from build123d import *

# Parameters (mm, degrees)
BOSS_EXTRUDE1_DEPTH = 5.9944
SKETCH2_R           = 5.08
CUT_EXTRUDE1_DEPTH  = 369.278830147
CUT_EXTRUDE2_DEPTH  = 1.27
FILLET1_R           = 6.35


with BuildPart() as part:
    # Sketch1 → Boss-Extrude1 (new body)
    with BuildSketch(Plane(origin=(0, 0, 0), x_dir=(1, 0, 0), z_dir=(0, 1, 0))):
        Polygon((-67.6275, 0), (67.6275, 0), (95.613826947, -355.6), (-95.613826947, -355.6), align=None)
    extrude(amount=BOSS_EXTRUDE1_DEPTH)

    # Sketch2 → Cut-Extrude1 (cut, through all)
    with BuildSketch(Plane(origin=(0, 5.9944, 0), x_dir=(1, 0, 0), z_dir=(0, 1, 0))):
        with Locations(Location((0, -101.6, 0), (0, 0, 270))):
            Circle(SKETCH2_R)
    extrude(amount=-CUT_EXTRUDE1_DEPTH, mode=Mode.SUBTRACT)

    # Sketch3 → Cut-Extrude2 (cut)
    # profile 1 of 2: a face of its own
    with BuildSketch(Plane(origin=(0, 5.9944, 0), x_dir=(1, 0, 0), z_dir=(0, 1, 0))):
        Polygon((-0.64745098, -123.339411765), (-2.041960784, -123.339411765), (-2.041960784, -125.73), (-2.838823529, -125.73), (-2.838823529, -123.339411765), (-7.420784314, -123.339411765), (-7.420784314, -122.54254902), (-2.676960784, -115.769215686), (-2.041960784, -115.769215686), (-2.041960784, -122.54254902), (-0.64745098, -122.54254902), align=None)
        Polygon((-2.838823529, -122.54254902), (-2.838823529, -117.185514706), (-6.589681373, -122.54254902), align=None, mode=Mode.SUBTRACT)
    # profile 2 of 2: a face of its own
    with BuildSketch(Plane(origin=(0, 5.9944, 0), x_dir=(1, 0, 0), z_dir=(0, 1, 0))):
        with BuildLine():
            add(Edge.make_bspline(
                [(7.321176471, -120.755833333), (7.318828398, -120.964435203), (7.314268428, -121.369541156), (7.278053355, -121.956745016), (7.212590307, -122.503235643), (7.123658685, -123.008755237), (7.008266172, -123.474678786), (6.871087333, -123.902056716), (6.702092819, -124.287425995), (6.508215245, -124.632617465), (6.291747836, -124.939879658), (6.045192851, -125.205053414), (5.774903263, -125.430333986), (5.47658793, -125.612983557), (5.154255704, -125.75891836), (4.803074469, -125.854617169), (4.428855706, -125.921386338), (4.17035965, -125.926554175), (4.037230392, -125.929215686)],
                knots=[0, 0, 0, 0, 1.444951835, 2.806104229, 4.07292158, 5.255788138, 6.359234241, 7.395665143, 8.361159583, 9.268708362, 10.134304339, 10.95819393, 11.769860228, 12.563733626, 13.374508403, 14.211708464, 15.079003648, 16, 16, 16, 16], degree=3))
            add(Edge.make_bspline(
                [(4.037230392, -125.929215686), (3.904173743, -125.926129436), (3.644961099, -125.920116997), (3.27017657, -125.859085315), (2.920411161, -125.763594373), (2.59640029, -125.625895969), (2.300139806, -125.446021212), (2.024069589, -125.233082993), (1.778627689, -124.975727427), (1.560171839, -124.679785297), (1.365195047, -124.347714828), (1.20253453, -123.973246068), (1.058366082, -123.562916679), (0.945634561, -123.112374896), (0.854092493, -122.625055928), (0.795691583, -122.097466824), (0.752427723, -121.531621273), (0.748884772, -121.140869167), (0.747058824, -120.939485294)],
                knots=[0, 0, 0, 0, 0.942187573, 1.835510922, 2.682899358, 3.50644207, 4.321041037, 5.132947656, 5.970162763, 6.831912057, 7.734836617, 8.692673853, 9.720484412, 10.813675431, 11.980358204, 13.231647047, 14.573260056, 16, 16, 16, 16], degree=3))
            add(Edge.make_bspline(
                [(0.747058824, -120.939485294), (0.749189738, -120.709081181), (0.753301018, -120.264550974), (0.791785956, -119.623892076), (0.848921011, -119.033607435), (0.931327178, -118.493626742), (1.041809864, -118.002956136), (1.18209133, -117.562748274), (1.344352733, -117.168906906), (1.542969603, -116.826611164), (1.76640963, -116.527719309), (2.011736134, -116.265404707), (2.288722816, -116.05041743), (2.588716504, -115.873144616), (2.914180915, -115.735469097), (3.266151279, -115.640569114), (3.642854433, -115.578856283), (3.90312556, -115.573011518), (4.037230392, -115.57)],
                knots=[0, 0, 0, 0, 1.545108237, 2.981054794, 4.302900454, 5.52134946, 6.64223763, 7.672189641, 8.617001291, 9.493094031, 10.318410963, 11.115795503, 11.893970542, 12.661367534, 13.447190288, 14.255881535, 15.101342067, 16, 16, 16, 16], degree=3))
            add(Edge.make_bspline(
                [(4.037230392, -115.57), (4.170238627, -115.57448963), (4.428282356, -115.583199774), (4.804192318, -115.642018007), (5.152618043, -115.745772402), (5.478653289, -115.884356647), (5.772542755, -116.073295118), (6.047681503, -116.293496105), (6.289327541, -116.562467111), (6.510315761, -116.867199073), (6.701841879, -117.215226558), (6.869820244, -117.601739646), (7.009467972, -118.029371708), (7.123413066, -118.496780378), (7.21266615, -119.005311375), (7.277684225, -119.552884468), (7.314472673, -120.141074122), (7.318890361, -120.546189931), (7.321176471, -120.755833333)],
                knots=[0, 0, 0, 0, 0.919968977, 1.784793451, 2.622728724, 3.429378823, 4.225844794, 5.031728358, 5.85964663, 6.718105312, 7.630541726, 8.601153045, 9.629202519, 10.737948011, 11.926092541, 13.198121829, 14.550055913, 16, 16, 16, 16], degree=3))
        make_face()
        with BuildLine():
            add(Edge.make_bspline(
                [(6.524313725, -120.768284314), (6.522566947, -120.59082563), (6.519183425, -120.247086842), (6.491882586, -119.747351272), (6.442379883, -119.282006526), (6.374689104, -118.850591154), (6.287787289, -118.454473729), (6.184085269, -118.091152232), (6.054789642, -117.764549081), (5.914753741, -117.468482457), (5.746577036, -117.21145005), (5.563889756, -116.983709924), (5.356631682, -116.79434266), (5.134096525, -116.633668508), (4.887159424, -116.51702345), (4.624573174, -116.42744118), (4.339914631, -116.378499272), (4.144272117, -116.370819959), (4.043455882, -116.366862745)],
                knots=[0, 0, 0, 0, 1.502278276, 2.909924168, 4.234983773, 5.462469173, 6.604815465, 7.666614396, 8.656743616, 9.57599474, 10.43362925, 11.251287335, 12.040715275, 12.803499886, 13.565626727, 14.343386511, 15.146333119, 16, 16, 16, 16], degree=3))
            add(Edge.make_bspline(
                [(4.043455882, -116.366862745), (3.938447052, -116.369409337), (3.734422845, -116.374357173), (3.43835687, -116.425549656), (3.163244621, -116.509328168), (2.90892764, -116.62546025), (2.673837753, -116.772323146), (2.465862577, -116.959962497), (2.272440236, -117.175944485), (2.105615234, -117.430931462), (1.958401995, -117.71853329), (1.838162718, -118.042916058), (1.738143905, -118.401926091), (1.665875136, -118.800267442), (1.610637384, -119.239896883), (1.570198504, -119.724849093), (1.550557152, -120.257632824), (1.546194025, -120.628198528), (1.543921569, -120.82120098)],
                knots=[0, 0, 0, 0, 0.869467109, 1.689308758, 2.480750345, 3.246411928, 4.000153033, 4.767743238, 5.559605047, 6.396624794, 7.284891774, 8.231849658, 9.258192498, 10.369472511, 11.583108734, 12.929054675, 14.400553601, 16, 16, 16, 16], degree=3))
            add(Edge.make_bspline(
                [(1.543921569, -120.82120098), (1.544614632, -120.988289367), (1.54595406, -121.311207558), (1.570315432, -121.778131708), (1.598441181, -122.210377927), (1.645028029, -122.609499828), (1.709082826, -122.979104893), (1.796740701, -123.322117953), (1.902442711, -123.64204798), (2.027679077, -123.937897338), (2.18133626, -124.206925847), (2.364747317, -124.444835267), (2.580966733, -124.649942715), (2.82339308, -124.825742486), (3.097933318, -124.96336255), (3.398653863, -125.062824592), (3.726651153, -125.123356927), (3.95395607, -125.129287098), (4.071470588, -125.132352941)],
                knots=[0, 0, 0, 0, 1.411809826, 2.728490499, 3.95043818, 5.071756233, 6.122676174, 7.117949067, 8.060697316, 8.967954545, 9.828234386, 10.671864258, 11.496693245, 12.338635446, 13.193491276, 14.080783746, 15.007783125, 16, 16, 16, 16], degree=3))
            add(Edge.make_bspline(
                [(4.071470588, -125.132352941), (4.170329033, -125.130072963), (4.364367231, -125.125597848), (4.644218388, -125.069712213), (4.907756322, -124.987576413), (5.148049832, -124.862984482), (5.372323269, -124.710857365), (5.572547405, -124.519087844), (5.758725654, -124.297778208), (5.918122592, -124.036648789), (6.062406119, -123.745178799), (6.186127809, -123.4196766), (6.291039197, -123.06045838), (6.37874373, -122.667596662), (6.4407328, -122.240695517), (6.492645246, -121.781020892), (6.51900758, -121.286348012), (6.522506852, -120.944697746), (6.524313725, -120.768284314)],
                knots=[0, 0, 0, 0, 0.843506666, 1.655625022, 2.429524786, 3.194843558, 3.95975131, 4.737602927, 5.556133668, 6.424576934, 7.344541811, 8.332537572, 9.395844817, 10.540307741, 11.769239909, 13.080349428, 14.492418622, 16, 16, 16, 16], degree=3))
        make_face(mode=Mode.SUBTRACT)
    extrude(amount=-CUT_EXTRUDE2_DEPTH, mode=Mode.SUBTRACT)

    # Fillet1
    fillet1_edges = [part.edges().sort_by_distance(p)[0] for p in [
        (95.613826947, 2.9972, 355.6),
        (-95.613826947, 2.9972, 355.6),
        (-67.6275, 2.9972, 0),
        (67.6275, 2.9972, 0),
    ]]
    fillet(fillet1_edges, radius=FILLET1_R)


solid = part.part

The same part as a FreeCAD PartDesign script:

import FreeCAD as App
import Part
import Sketcher

V = App.Vector
Q = App.Units.Quantity


def edges_at(feature, points):
    """Names of the edges that pass closest to the given points."""
    edges = feature.Shape.Edges
    near = lambda p: min(range(len(edges)), key=lambda i: edges[i].distToShape(Part.Vertex(*p))[0])
    return sorted({f"Edge{near(p) + 1}" for p in points})


def add_polygon(sketch, points):
    """Adds a closed chain of lines whose ends are joined by coincident constraints."""
    first, n = sketch.GeometryCount, len(points)
    for a, b in zip(points, points[1:] + points[:1]):
        sketch.addGeometry(Part.LineSegment(App.Vector(*a, 0), App.Vector(*b, 0)), False)
    for i in range(n):
        sketch.addConstraint(Sketcher.Constraint("Coincident", first + i, 2, first + (i + 1) % n, 1))

doc = App.newDocument("Part")
body = doc.addObject("PartDesign::Body", "Body")

# Sketch on XZ plane
sketch1 = body.newObject("Sketcher::SketchObject", "Sketch")
sketch1.AttachmentSupport = (doc.getObject("XZ_Plane"), [""])
sketch1.MapMode = "FlatFace"
add_polygon(sketch1, [(68, 0), (-68, 0), (-96, 356), (96, 356)])  # lines 0-3
sketch1.addConstraint(Sketcher.Constraint("Horizontal", 0))
sketch1.addConstraint(Sketcher.Constraint("Horizontal", 2))
sketch1.addConstraint(Sketcher.Constraint("Symmetric", 0, 2, 3, 2, -1, 1))
sketch1.addConstraint(Sketcher.Constraint("Equal", 1, 3))
sketch1.addConstraint(Sketcher.Constraint("DistanceY", -1, 1, 1, 2, Q("14 in")))
sketch1.addConstraint(Sketcher.Constraint("Angle", 1, Q("94.5 deg")))
sketch1.addConstraint(Sketcher.Constraint("DistanceX", 0, 2, 0, 1, Q("5.325 in")))
pad1 = body.newObject("PartDesign::Pad", "Pad")
pad1.Profile = sketch1
pad1.Length = Q("0.236 in")
pad1.Reversed = True

# Sketch on XZ plane
sketch2 = body.newObject("Sketcher::SketchObject", "Sketch001")
sketch2.AttachmentSupport = (doc.getObject("XZ_Plane"), [""])
sketch2.MapMode = "FlatFace"
sketch2.AttachmentOffset = App.Placement(V(0, 0, -0.236 * 25.4), App.Rotation())
sketch2.addGeometry(Part.Circle(V(0, 102, 0), V(0, 0, 1), 5), False)
sketch2.addConstraint(Sketcher.Constraint("PointOnObject", 0, 3, -2))
sketch2.addConstraint(Sketcher.Constraint("Diameter", 0, Q("0.4 in")))
sketch2.addConstraint(Sketcher.Constraint("DistanceY", -1, 1, 0, 3, Q("4 in")))
pocket1 = body.newObject("PartDesign::Pocket", "Pocket")
pocket1.Profile = sketch2
pocket1.Type = "ThroughAll"
pocket1.Reversed = True

# Sketch on XZ plane
sketch3 = body.newObject("Sketcher::SketchObject", "Sketch002")
sketch3.AttachmentSupport = (doc.getObject("XZ_Plane"), [""])
sketch3.MapMode = "FlatFace"
sketch3.AttachmentOffset = App.Placement(V(0, 0, -0.236 * 25.4), App.Rotation())
add_polygon(sketch3, [(-2.041961, 123.339412), (-0.647451, 123.339412), (-0.647451, 122.542549), (-2.041961, 122.542549), (-2.041961, 115.769216), (-2.676961, 115.769216), (-7.420784, 122.542549), (-7.420784, 123.339412), (-2.838824, 123.339412), (-2.838824, 125.73), (-2.041961, 125.73)])  # lines 0-10
add_polygon(sketch3, [(-2.838824, 122.542549), (-6.589681, 122.542549), (-2.838824, 117.185515)])  # lines 11-13
sketch3.addGeometry(Part.BSplineCurve([V(7.321176, 120.755833, 0), V(7.318828, 120.964435, 0), V(7.314268, 121.369541, 0), V(7.278053, 121.956745, 0), V(7.21259, 122.503236, 0), V(7.123659, 123.008755, 0), V(7.008266, 123.474679, 0), V(6.871087, 123.902057, 0), V(6.702093, 124.287426, 0), V(6.508215, 124.632617, 0), V(6.291748, 124.93988, 0), V(6.045193, 125.205053, 0), V(5.774903, 125.430334, 0), V(5.476588, 125.612984, 0), V(5.154256, 125.758918, 0), V(4.803074, 125.854617, 0), V(4.428856, 125.921386, 0), V(4.17036, 125.926554, 0), V(4.03723, 125.929216, 0)], [4, 1, 1, 1, 1, 1, 1, 1, 1, 1, 1, 1, 1, 1, 1, 1, 4], [0, 1.444951835, 2.806104229, 4.07292158, 5.255788138, 6.359234241, 7.395665143, 8.361159583, 9.268708362, 10.134304339, 10.95819393, 11.769860228, 12.563733626, 13.374508403, 14.211708464, 15.079003648, 16], False, 3, [1, 1, 1, 1, 1, 1, 1, 1, 1, 1, 1, 1, 1, 1, 1, 1, 1, 1, 1], False), False)  # 14
sketch3.addGeometry(Part.BSplineCurve([V(4.03723, 115.57, 0), V(4.170239, 115.57449, 0), V(4.428282, 115.5832, 0), V(4.804192, 115.642018, 0), V(5.152618, 115.745772, 0), V(5.478653, 115.884357, 0), V(5.772543, 116.073295, 0), V(6.047682, 116.293496, 0), V(6.289328, 116.562467, 0), V(6.510316, 116.867199, 0), V(6.701842, 117.215227, 0), V(6.86982, 117.60174, 0), V(7.009468, 118.029372, 0), V(7.123413, 118.49678, 0), V(7.212666, 119.005311, 0), V(7.277684, 119.552884, 0), V(7.314473, 120.141074, 0), V(7.31889, 120.54619, 0), V(7.321176, 120.755833, 0)], [4, 1, 1, 1, 1, 1, 1, 1, 1, 1, 1, 1, 1, 1, 1, 1, 4], [0, 0.919968977, 1.784793451, 2.622728724, 3.429378823, 4.225844794, 5.031728358, 5.85964663, 6.718105312, 7.630541726, 8.601153045, 9.629202519, 10.737948011, 11.926092541, 13.198121829, 14.550055913, 16], False, 3, [1, 1, 1, 1, 1, 1, 1, 1, 1, 1, 1, 1, 1, 1, 1, 1, 1, 1, 1], False), False)  # 15
sketch3.addGeometry(Part.BSplineCurve([V(0.747059, 120.939485, 0), V(0.74919, 120.709081, 0), V(0.753301, 120.264551, 0), V(0.791786, 119.623892, 0), V(0.848921, 119.033607, 0), V(0.931327, 118.493627, 0), V(1.04181, 118.002956, 0), V(1.182091, 117.562748, 0), V(1.344353, 117.168907, 0), V(1.54297, 116.826611, 0), V(1.76641, 116.527719, 0), V(2.011736, 116.265405, 0), V(2.288723, 116.050417, 0), V(2.588717, 115.873145, 0), V(2.914181, 115.735469, 0), V(3.266151, 115.640569, 0), V(3.642854, 115.578856, 0), V(3.903126, 115.573012, 0), V(4.03723, 115.57, 0)], [4, 1, 1, 1, 1, 1, 1, 1, 1, 1, 1, 1, 1, 1, 1, 1, 4], [0, 1.545108237, 2.981054794, 4.302900454, 5.52134946, 6.64223763, 7.672189641, 8.617001291, 9.493094031, 10.318410963, 11.115795503, 11.893970542, 12.661367534, 13.447190288, 14.255881535, 15.101342067, 16], False, 3, [1, 1, 1, 1, 1, 1, 1, 1, 1, 1, 1, 1, 1, 1, 1, 1, 1, 1, 1], False), False)  # 16
sketch3.addGeometry(Part.BSplineCurve([V(4.03723, 125.929216, 0), V(3.904174, 125.926129, 0), V(3.644961, 125.920117, 0), V(3.270177, 125.859085, 0), V(2.920411, 125.763594, 0), V(2.5964, 125.625896, 0), V(2.30014, 125.446021, 0), V(2.02407, 125.233083, 0), V(1.778628, 124.975727, 0), V(1.560172, 124.679785, 0), V(1.365195, 124.347715, 0), V(1.202535, 123.973246, 0), V(1.058366, 123.562917, 0), V(0.945635, 123.112375, 0), V(0.854092, 122.625056, 0), V(0.795692, 122.097467, 0), V(0.752428, 121.531621, 0), V(0.748885, 121.140869, 0), V(0.747059, 120.939485, 0)], [4, 1, 1, 1, 1, 1, 1, 1, 1, 1, 1, 1, 1, 1, 1, 1, 4], [0, 0.942187573, 1.835510922, 2.682899358, 3.50644207, 4.321041037, 5.132947656, 5.970162763, 6.831912057, 7.734836617, 8.692673853, 9.720484412, 10.813675431, 11.980358204, 13.231647047, 14.573260056, 16], False, 3, [1, 1, 1, 1, 1, 1, 1, 1, 1, 1, 1, 1, 1, 1, 1, 1, 1, 1, 1], False), False)  # 17
sketch3.addGeometry(Part.BSplineCurve([V(4.071471, 125.132353, 0), V(4.170329, 125.130073, 0), V(4.364367, 125.125598, 0), V(4.644218, 125.069712, 0), V(4.907756, 124.987576, 0), V(5.14805, 124.862984, 0), V(5.372323, 124.710857, 0), V(5.572547, 124.519088, 0), V(5.758726, 124.297778, 0), V(5.918123, 124.036649, 0), V(6.062406, 123.745179, 0), V(6.186128, 123.419677, 0), V(6.291039, 123.060458, 0), V(6.378744, 122.667597, 0), V(6.440733, 122.240696, 0), V(6.492645, 121.781021, 0), V(6.519008, 121.286348, 0), V(6.522507, 120.944698, 0), V(6.524314, 120.768284, 0)], [4, 1, 1, 1, 1, 1, 1, 1, 1, 1, 1, 1, 1, 1, 1, 1, 4], [0, 0.843506666, 1.655625022, 2.429524786, 3.194843558, 3.95975131, 4.737602927, 5.556133668, 6.424576934, 7.344541811, 8.332537572, 9.395844817, 10.540307741, 11.769239909, 13.080349428, 14.492418622, 16], False, 3, [1, 1, 1, 1, 1, 1, 1, 1, 1, 1, 1, 1, 1, 1, 1, 1, 1, 1, 1], False), False)  # 18
sketch3.addGeometry(Part.BSplineCurve([V(1.543922, 120.821201, 0), V(1.544615, 120.988289, 0), V(1.545954, 121.311208, 0), V(1.570315, 121.778132, 0), V(1.598441, 122.210378, 0), V(1.645028, 122.6095, 0), V(1.709083, 122.979105, 0), V(1.796741, 123.322118, 0), V(1.902443, 123.642048, 0), V(2.027679, 123.937897, 0), V(2.181336, 124.206926, 0), V(2.364747, 124.444835, 0), V(2.580967, 124.649943, 0), V(2.823393, 124.825742, 0), V(3.097933, 124.963363, 0), V(3.398654, 125.062825, 0), V(3.726651, 125.123357, 0), V(3.953956, 125.129287, 0), V(4.071471, 125.132353, 0)], [4, 1, 1, 1, 1, 1, 1, 1, 1, 1, 1, 1, 1, 1, 1, 1, 4], [0, 1.411809826, 2.728490499, 3.95043818, 5.071756233, 6.122676174, 7.117949067, 8.060697316, 8.967954545, 9.828234386, 10.671864258, 11.496693245, 12.338635446, 13.193491276, 14.080783746, 15.007783125, 16], False, 3, [1, 1, 1, 1, 1, 1, 1, 1, 1, 1, 1, 1, 1, 1, 1, 1, 1, 1, 1], False), False)  # 19
sketch3.addGeometry(Part.BSplineCurve([V(4.043456, 116.366863, 0), V(3.938447, 116.369409, 0), V(3.734423, 116.374357, 0), V(3.438357, 116.42555, 0), V(3.163245, 116.509328, 0), V(2.908928, 116.62546, 0), V(2.673838, 116.772323, 0), V(2.465863, 116.959962, 0), V(2.27244, 117.175944, 0), V(2.105615, 117.430931, 0), V(1.958402, 117.718533, 0), V(1.838163, 118.042916, 0), V(1.738144, 118.401926, 0), V(1.665875, 118.800267, 0), V(1.610637, 119.239897, 0), V(1.570199, 119.724849, 0), V(1.550557, 120.257633, 0), V(1.546194, 120.628199, 0), V(1.543922, 120.821201, 0)], [4, 1, 1, 1, 1, 1, 1, 1, 1, 1, 1, 1, 1, 1, 1, 1, 4], [0, 0.869467109, 1.689308758, 2.480750345, 3.246411928, 4.000153033, 4.767743238, 5.559605047, 6.396624794, 7.284891774, 8.231849658, 9.258192498, 10.369472511, 11.583108734, 12.929054675, 14.400553601, 16], False, 3, [1, 1, 1, 1, 1, 1, 1, 1, 1, 1, 1, 1, 1, 1, 1, 1, 1, 1, 1], False), False)  # 20
sketch3.addGeometry(Part.BSplineCurve([V(6.524314, 120.768284, 0), V(6.522567, 120.590826, 0), V(6.519183, 120.247087, 0), V(6.491883, 119.747351, 0), V(6.44238, 119.282007, 0), V(6.374689, 118.850591, 0), V(6.287787, 118.454474, 0), V(6.184085, 118.091152, 0), V(6.05479, 117.764549, 0), V(5.914754, 117.468482, 0), V(5.746577, 117.21145, 0), V(5.56389, 116.98371, 0), V(5.356632, 116.794343, 0), V(5.134097, 116.633669, 0), V(4.887159, 116.517023, 0), V(4.624573, 116.427441, 0), V(4.339915, 116.378499, 0), V(4.144272, 116.37082, 0), V(4.043456, 116.366863, 0)], [4, 1, 1, 1, 1, 1, 1, 1, 1, 1, 1, 1, 1, 1, 1, 1, 4], [0, 1.502278276, 2.909924168, 4.234983773, 5.462469173, 6.604815465, 7.666614396, 8.656743616, 9.57599474, 10.43362925, 11.251287335, 12.040715275, 12.803499886, 13.565626727, 14.343386511, 15.146333119, 16], False, 3, [1, 1, 1, 1, 1, 1, 1, 1, 1, 1, 1, 1, 1, 1, 1, 1, 1, 1, 1], False), False)  # 21
sketch3.addConstraint(Sketcher.Constraint("Block", 14))
sketch3.addConstraint(Sketcher.Constraint("Block", 15))
sketch3.addConstraint(Sketcher.Constraint("Block", 16))
sketch3.addConstraint(Sketcher.Constraint("Block", 17))
sketch3.addConstraint(Sketcher.Constraint("Block", 18))
sketch3.addConstraint(Sketcher.Constraint("Block", 19))
sketch3.addConstraint(Sketcher.Constraint("Block", 20))
sketch3.addConstraint(Sketcher.Constraint("Block", 21))
sketch3.addConstraint(Sketcher.Constraint("Horizontal", 0))
sketch3.addConstraint(Sketcher.Constraint("Vertical", 1))
sketch3.addConstraint(Sketcher.Constraint("Horizontal", 2))
sketch3.addConstraint(Sketcher.Constraint("Vertical", 3))
sketch3.addConstraint(Sketcher.Constraint("Horizontal", 4))
sketch3.addConstraint(Sketcher.Constraint("Vertical", 6))
sketch3.addConstraint(Sketcher.Constraint("Horizontal", 7))
sketch3.addConstraint(Sketcher.Constraint("Vertical", 8))
sketch3.addConstraint(Sketcher.Constraint("Horizontal", 9))
sketch3.addConstraint(Sketcher.Constraint("Vertical", 10))
sketch3.addConstraint(Sketcher.Constraint("Horizontal", 11))
sketch3.addConstraint(Sketcher.Constraint("Vertical", 13))
sketch3.addConstraint(Sketcher.Constraint("Horizontal", 2, 2, 5, 2))
sketch3.addConstraint(Sketcher.Constraint("Horizontal", 0, 2, 6, 2))
sketch3.addConstraint(Sketcher.Constraint("Horizontal", 5, 2, 11, 2))
sketch3.addConstraint(Sketcher.Constraint("Vertical", 3, 2, 9, 2))
sketch3.addConstraint(Sketcher.Constraint("Vertical", 8, 2, 12, 2))
sketch3.addConstraint(Sketcher.Constraint("Equal", 9, 1))
sketch3.addConstraint(Sketcher.Constraint("DistanceX", 4, 2, 4, 1, Q("0.025 in")))
sketch3.addConstraint(Sketcher.Constraint("DistanceY", -1, 1, 8, 2, Q("4.95 in")))
sketch3.addConstraint(Sketcher.Constraint("DistanceX", 0, 1, 0, 2, Q("1.39451 mm")))
sketch3.addConstraint(Sketcher.Constraint("DistanceX", 7, 1, 7, 2, Q("4.581961 mm")))
sketch3.addConstraint(Sketcher.Constraint("DistanceY", 8, 1, 8, 2, Q("2.390588 mm")))
sketch3.addConstraint(Sketcher.Constraint("DistanceY", 4, 2, 12, 2, Q("1.416299 mm")))
sketch3.addConstraint(Sketcher.Constraint("Distance", 12, Q("6.539629 mm")))
sketch3.addConstraint(Sketcher.Constraint("DistanceX", 9, 1, 9, 2, Q("0.796863 mm")))
sketch3.addConstraint(Sketcher.Constraint("DistanceX", 11, 2, 11, 1, Q("3.750858 mm")))
sketch3.addConstraint(Sketcher.Constraint("DistanceX", 0, 2, -1, 1, Q("0.647451 mm")))
pocket2 = body.newObject("PartDesign::Pocket", "Pocket001")
pocket2.Profile = sketch3
pocket2.Length = Q("0.05 in")
pocket2.Reversed = True
doc.recompute()

fillet = body.newObject("PartDesign::Fillet", "Fillet")
fillet.Base = (pocket2, edges_at(pocket2, [
    (95.614, 2.997, 355.6),
    (-95.614, 2.997, 355.6),
    (-67.627, 2.997, 0),
    (67.627, 2.997, 0),
]))
fillet.Radius = Q("0.25 in")

doc.recompute()
